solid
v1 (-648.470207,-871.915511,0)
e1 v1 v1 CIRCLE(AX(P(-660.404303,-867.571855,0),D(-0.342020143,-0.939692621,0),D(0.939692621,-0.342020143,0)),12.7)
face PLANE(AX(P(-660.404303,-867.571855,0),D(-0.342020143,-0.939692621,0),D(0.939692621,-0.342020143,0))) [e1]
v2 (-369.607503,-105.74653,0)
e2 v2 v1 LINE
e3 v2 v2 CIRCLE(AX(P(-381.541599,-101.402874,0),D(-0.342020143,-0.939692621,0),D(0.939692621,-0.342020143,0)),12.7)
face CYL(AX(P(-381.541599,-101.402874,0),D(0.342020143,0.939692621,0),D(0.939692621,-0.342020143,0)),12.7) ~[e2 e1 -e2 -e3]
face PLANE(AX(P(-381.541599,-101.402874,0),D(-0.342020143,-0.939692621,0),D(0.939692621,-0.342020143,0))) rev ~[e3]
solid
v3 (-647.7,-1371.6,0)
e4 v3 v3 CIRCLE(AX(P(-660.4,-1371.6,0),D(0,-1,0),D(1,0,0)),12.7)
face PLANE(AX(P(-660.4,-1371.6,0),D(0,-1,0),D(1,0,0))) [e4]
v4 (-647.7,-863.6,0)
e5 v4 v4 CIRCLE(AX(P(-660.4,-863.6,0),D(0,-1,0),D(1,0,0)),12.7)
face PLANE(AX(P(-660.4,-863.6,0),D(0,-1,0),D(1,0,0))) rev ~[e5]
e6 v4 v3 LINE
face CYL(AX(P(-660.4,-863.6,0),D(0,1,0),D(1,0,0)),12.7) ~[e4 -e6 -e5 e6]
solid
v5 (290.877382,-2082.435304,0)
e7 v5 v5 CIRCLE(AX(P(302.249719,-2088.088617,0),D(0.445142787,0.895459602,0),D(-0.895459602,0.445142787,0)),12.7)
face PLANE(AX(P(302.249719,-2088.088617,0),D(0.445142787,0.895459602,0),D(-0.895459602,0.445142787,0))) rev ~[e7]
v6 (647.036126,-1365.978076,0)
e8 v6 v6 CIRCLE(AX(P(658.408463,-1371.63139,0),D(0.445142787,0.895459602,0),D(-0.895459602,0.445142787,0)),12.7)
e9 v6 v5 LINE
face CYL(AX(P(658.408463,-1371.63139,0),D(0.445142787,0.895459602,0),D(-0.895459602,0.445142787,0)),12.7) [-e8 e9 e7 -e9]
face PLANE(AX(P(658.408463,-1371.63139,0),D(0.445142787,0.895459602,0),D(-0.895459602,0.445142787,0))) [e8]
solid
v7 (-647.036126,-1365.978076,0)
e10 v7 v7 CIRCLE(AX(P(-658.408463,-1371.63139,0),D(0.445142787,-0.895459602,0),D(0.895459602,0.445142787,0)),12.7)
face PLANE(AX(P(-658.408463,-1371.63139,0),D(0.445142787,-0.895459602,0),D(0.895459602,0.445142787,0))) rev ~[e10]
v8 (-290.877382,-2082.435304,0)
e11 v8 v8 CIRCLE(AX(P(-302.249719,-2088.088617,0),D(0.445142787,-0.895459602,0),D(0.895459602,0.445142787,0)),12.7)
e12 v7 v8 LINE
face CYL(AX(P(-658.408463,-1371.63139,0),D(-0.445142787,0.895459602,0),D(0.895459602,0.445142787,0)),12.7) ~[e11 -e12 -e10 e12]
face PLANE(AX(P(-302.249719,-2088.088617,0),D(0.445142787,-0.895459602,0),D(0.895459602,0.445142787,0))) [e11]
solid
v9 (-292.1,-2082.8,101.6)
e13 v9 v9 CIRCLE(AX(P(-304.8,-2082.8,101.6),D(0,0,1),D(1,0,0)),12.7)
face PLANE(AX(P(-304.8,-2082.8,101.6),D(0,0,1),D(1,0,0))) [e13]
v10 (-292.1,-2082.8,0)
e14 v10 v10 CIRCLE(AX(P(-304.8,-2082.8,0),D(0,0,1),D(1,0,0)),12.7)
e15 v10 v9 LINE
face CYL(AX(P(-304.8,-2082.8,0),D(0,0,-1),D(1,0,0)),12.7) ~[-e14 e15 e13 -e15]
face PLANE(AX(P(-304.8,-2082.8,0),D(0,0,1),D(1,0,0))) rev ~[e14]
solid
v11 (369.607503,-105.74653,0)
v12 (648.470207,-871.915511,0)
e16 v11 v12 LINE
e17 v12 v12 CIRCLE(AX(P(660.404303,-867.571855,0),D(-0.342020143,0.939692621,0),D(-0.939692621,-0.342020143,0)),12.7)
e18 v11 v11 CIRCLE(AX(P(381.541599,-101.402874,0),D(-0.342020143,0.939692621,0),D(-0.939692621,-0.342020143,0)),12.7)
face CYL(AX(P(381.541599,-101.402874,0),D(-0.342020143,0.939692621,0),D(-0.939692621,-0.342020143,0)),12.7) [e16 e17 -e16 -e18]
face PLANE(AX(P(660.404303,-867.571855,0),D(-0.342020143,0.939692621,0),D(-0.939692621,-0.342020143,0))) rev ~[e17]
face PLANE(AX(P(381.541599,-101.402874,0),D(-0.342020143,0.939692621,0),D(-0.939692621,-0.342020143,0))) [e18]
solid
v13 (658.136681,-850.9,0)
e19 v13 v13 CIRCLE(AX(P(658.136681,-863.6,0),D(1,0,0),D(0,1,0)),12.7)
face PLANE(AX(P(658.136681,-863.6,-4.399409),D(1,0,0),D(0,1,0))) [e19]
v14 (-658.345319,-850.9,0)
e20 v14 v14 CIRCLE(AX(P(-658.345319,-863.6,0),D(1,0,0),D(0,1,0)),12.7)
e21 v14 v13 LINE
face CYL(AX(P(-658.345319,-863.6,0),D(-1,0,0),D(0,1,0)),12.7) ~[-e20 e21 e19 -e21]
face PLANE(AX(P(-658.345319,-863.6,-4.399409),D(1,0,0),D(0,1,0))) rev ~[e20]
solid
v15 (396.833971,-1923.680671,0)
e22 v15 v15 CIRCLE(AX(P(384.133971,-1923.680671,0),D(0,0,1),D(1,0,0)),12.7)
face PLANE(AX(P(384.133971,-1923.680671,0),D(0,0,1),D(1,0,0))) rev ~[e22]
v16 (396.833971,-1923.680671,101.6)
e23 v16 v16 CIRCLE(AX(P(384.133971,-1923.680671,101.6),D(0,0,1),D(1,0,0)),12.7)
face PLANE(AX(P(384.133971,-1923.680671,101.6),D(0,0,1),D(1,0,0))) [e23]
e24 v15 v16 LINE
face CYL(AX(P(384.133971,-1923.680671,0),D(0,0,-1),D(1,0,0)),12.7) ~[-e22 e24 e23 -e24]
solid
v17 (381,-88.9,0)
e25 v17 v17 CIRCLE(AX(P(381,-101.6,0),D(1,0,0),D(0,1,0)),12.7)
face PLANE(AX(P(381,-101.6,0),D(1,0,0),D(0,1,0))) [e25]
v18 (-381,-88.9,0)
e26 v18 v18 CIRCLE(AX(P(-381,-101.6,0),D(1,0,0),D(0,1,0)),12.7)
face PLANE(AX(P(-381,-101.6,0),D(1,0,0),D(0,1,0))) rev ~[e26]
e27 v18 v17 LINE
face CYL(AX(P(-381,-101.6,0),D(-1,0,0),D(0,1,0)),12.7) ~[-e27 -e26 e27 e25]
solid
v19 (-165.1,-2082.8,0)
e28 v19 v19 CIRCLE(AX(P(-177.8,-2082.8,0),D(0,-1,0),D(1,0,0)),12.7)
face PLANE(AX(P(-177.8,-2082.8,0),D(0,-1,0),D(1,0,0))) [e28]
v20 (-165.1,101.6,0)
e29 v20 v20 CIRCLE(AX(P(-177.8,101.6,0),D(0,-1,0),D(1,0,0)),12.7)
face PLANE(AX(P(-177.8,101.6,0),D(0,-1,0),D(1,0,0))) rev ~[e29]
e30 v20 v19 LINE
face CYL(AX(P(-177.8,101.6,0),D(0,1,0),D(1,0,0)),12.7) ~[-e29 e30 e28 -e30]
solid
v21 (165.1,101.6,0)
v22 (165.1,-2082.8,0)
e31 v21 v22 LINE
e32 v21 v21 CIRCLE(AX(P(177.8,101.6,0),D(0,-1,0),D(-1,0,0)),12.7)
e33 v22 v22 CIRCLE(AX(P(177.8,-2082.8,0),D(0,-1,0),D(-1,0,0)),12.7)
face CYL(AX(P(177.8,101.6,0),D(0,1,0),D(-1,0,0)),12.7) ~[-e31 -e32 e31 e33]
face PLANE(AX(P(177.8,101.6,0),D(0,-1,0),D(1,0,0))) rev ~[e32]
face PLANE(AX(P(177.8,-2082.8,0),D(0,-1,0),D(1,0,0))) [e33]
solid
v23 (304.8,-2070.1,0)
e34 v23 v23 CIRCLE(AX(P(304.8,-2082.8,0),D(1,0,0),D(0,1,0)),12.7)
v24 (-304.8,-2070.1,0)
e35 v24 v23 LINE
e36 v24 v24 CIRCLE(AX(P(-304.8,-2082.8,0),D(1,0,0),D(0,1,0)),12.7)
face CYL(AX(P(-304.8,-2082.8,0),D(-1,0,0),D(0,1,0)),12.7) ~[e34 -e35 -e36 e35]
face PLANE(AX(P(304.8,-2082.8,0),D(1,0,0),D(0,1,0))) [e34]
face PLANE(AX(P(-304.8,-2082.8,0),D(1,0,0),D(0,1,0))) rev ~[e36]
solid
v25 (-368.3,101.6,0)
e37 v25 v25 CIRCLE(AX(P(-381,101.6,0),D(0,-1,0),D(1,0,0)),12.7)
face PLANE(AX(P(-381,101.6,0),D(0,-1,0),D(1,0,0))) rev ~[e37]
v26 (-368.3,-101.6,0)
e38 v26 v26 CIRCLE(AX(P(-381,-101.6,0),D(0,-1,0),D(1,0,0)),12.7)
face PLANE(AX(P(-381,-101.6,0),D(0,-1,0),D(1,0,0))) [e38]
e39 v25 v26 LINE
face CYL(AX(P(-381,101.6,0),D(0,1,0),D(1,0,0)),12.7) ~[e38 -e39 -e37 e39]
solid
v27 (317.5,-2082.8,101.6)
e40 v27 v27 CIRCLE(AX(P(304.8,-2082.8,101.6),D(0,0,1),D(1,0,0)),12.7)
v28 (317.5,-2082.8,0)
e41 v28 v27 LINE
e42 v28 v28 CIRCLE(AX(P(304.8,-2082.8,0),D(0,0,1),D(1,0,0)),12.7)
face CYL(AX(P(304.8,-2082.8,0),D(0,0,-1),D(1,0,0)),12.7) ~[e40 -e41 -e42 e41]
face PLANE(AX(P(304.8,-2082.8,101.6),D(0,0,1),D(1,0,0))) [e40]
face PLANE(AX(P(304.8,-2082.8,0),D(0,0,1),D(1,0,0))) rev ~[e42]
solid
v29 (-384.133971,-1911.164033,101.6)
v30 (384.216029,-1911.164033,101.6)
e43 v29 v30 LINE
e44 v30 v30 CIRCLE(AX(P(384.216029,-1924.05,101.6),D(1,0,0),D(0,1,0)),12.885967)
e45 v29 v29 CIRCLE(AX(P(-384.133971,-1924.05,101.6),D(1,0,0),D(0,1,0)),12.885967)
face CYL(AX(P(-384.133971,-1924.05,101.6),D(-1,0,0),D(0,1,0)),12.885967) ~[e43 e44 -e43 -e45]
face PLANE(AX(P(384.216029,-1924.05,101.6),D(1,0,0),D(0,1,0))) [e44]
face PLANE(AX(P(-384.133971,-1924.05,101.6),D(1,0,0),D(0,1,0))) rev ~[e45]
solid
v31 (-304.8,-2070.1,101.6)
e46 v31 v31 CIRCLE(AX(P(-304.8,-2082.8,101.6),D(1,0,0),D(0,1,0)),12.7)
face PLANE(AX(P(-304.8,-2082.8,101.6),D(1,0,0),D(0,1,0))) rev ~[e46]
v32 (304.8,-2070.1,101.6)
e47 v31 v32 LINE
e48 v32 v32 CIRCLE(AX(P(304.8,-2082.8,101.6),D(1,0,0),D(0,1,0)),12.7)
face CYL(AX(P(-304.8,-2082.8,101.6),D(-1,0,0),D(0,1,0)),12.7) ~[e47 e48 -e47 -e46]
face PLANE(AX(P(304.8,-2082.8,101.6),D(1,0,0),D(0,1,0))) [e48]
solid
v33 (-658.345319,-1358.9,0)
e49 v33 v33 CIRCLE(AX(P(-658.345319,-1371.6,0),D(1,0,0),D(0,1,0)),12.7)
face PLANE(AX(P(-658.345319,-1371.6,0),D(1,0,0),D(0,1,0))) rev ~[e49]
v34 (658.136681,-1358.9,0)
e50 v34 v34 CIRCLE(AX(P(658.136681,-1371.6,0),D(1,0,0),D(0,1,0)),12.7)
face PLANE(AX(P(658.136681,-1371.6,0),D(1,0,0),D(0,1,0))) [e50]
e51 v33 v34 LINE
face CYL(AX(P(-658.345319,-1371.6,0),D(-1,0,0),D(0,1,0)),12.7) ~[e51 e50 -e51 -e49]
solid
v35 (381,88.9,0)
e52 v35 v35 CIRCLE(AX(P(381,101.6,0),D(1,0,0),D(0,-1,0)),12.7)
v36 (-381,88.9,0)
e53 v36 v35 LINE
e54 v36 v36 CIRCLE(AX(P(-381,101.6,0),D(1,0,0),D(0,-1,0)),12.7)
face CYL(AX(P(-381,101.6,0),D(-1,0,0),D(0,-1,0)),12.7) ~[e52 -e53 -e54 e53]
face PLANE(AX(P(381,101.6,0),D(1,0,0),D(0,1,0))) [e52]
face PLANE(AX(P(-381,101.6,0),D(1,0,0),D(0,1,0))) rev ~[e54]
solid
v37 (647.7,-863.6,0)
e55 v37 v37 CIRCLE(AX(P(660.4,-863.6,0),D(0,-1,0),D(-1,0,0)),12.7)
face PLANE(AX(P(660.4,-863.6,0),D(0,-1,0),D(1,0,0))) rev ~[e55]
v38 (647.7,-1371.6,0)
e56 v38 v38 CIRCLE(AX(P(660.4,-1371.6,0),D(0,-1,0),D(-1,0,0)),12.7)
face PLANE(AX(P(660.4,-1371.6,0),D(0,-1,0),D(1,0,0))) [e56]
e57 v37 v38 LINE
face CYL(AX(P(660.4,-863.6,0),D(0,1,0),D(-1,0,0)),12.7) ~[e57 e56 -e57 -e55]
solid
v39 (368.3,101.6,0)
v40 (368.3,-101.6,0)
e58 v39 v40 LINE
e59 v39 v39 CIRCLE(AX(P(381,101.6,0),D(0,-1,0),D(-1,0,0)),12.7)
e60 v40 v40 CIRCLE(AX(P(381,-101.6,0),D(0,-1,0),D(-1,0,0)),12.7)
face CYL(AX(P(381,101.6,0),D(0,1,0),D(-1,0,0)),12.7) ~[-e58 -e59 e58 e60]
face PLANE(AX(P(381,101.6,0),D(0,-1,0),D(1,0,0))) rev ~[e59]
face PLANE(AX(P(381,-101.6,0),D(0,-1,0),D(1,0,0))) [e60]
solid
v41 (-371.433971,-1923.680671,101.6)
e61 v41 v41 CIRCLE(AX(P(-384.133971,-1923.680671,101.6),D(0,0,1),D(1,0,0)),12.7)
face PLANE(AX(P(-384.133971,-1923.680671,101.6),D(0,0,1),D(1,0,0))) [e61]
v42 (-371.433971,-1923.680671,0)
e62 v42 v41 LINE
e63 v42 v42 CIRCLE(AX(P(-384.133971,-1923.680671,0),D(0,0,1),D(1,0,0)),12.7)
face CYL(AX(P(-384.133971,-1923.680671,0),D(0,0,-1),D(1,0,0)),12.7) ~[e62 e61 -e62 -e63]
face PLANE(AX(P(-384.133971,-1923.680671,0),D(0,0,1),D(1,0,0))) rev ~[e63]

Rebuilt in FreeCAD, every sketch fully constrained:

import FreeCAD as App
import Part
import Sketcher

V = App.Vector
Q = App.Units.Quantity

doc = App.newDocument("Part")
body = doc.addObject("PartDesign::Body", "Body")

# Sketch on YZ plane
sketch1 = body.newObject("Sketcher::SketchObject", "Sketch")
sketch1.AttachmentSupport = (doc.getObject("YZ_Plane"), [""])
sketch1.MapMode = "FlatFace"
sketch1.AttachmentOffset = App.Placement(V(0, 0, -15 * 25.4), App.Rotation())
sketch1.addGeometry(Part.Circle(V(102, 0, 0), V(0, 0, 1), 13), False)
sketch1.addConstraint([
    Sketcher.Constraint("PointOnObject", 0, 3, -1),
    Sketcher.Constraint("Diameter", 0, Q("1 in")),
    Sketcher.Constraint("DistanceX", -1, 1, 0, 3, Q("4 in")),
])
pad1 = body.newObject("PartDesign::Pad", "Pad")
pad1.Profile = sketch1
pad1.Length = Q("30 in")
body2 = doc.addObject("PartDesign::Body", "Body001")

# Sketch on YZ plane
sketch2 = body2.newObject("Sketcher::SketchObject", "Sketch001")
sketch2.AttachmentSupport = (doc.getObject("YZ_Plane001"), [""])
sketch2.MapMode = "FlatFace"
sketch2.AttachmentOffset = App.Placement(V(0, 0, -15 * 25.4), App.Rotation())
sketch2.addGeometry(Part.Circle(V(-102, 0, 0), V(0, 0, 1), 13), False)
sketch2.addConstraint([
    Sketcher.Constraint("PointOnObject", 0, 3, -1),
    Sketcher.Constraint("Diameter", 0, Q("1 in")),
    Sketcher.Constraint("DistanceX", 0, 3, -1, 1, Q("4 in")),
])
pad2 = body2.newObject("PartDesign::Pad", "Pad001")
pad2.Profile = sketch2
pad2.Length = Q("30 in")
body3 = doc.addObject("PartDesign::Body", "Body002")

# Sketch on YZ plane
sketch3 = body3.newObject("Sketcher::SketchObject", "Sketch002")
sketch3.AttachmentSupport = (doc.getObject("YZ_Plane002"), [""])
sketch3.MapMode = "FlatFace"
sketch3.AttachmentOffset = App.Placement(V(0, 0, -658.345319), App.Rotation())
sketch3.addGeometry(Part.Circle(V(-864, 0, 0), V(0, 0, 1), 13), False)
sketch3.addConstraint([
    Sketcher.Constraint("PointOnObject", 0, 3, -1),
    Sketcher.Constraint("Diameter", 0, Q("1 in")),
    Sketcher.Constraint("DistanceX", 0, 3, -1, 1, Q("34 in")),
])
pad3 = body3.newObject("PartDesign::Pad", "Pad002")
pad3.Profile = sketch3
pad3.Length = Q("51.83 in")
body4 = doc.addObject("PartDesign::Body", "Body003")

# Sketch on YZ plane
sketch4 = body4.newObject("Sketcher::SketchObject", "Sketch003")
sketch4.AttachmentSupport = (doc.getObject("YZ_Plane003"), [""])
sketch4.MapMode = "FlatFace"
sketch4.AttachmentOffset = App.Placement(V(0, 0, -658.345319), App.Rotation())
sketch4.addGeometry(Part.Circle(V(-1372, 0, 0), V(0, 0, 1), 13), False)
sketch4.addConstraint([
    Sketcher.Constraint("PointOnObject", 0, 3, -1),
    Sketcher.Constraint("Diameter", 0, Q("1 in")),
    Sketcher.Constraint("DistanceX", 0, 3, -1, 1, Q("54 in")),
])
pad4 = body4.newObject("PartDesign::Pad", "Pad003")
pad4.Profile = sketch4
pad4.Length = Q("51.83 in")
body5 = doc.addObject("PartDesign::Body", "Body004")

# Sketch on YZ plane
sketch5 = body5.newObject("Sketcher::SketchObject", "Sketch004")
sketch5.AttachmentSupport = (doc.getObject("YZ_Plane004"), [""])
sketch5.MapMode = "FlatFace"
sketch5.AttachmentOffset = App.Placement(V(0, 0, -12 * 25.4), App.Rotation())
sketch5.addGeometry(Part.Circle(V(-2083, 0, 0), V(0, 0, 1), 13), False)
sketch5.addConstraint([
    Sketcher.Constraint("PointOnObject", 0, 3, -1),
    Sketcher.Constraint("Diameter", 0, Q("1 in")),
    Sketcher.Constraint("DistanceX", 0, 3, -1, 1, Q("82 in")),
])
pad5 = body5.newObject("PartDesign::Pad", "Pad004")
pad5.Profile = sketch5
pad5.Length = Q("24 in")
body6 = doc.addObject("PartDesign::Body", "Body005")

# Sketch on XZ plane
sketch6 = body6.newObject("Sketcher::SketchObject", "Sketch005")
sketch6.AttachmentSupport = (doc.getObject("XZ_Plane005"), [""])
sketch6.MapMode = "FlatFace"
sketch6.AttachmentOffset = App.Placement(V(0, 0, -4 * 25.4), App.Rotation())
sketch6.addGeometry(Part.Circle(V(-178, 0, 0), V(0, 0, 1), 13), False)
sketch6.addConstraint([
    Sketcher.Constraint("PointOnObject", 0, 3, -1),
    Sketcher.Constraint("Diameter", 0, Q("1 in")),
    Sketcher.Constraint("DistanceX", 0, 3, -1, 1, Q("7 in")),
])
pad6 = body6.newObject("PartDesign::Pad", "Pad005")
pad6.Profile = sketch6
pad6.Length = Q("86 in")
body7 = doc.addObject("PartDesign::Body", "Body006")

# Sketch on XZ plane
sketch7 = body7.newObject("Sketcher::SketchObject", "Sketch006")
sketch7.AttachmentSupport = (doc.getObject("XZ_Plane006"), [""])
sketch7.MapMode = "FlatFace"
sketch7.AttachmentOffset = App.Placement(V(0, 0, -4 * 25.4), App.Rotation())
sketch7.addGeometry(Part.Circle(V(178, 0, 0), V(0, 0, 1), 13), False)
sketch7.addConstraint([
    Sketcher.Constraint("PointOnObject", 0, 3, -1),
    Sketcher.Constraint("Diameter", 0, Q("1 in")),
    Sketcher.Constraint("DistanceX", -1, 1, 0, 3, Q("7 in")),
])
pad7 = body7.newObject("PartDesign::Pad", "Pad006")
pad7.Profile = sketch7
pad7.Length = Q("86 in")
body8 = doc.addObject("PartDesign::Body", "Body007")

# Sketch on XZ plane
sketch8 = body8.newObject("Sketcher::SketchObject", "Sketch007")
sketch8.AttachmentSupport = (doc.getObject("XZ_Plane007"), [""])
sketch8.MapMode = "FlatFace"
sketch8.AttachmentOffset = App.Placement(V(0, 0, -4 * 25.4), App.Rotation())
sketch8.addGeometry(Part.Circle(V(381, 0, 0), V(0, 0, 1), 13), False)
sketch8.addConstraint([
    Sketcher.Constraint("PointOnObject", 0, 3, -1),
    Sketcher.Constraint("Diameter", 0, Q("1 in")),
    Sketcher.Constraint("DistanceX", -1, 1, 0, 3, Q("15 in")),
])
pad8 = body8.newObject("PartDesign::Pad", "Pad007")
pad8.Profile = sketch8
pad8.Length = Q("8 in")
body9 = doc.addObject("PartDesign::Body", "Body008")

# Sketch on XZ plane
sketch9 = body9.newObject("Sketcher::SketchObject", "Sketch008")
sketch9.AttachmentSupport = (doc.getObject("XZ_Plane008"), [""])
sketch9.MapMode = "FlatFace"
sketch9.AttachmentOffset = App.Placement(V(0, 0, -4 * 25.4), App.Rotation())
sketch9.addGeometry(Part.Circle(V(-381, 0, 0), V(0, 0, 1), 13), False)
sketch9.addConstraint([
    Sketcher.Constraint("PointOnObject", 0, 3, -1),
    Sketcher.Constraint("Diameter", 0, Q("1 in")),
    Sketcher.Constraint("DistanceX", 0, 3, -1, 1, Q("15 in")),
])
pad9 = body9.newObject("PartDesign::Pad", "Pad008")
pad9.Profile = sketch9
pad9.Length = Q("8 in")
body10 = doc.addObject("PartDesign::Body", "Body009")

# Sketch on XZ plane
sketch10 = body10.newObject("Sketcher::SketchObject", "Sketch009")
sketch10.AttachmentSupport = (doc.getObject("XZ_Plane009"), [""])
sketch10.MapMode = "FlatFace"
sketch10.AttachmentOffset = App.Placement(V(0, 0, 34 * 25.4), App.Rotation())
sketch10.addGeometry(Part.Circle(V(660, 0, 0), V(0, 0, 1), 13), False)
sketch10.addConstraint([
    Sketcher.Constraint("PointOnObject", 0, 3, -1),
    Sketcher.Constraint("Diameter", 0, Q("1 in")),
    Sketcher.Constraint("DistanceX", -1, 1, 0, 3, Q("26 in")),
])
pad10 = body10.newObject("PartDesign::Pad", "Pad009")
pad10.Profile = sketch10
pad10.Length = Q("20 in")
body11 = doc.addObject("PartDesign::Body", "Body010")

# Sketch on XZ plane
sketch11 = body11.newObject("Sketcher::SketchObject", "Sketch010")
sketch11.AttachmentSupport = (doc.getObject("XZ_Plane010"), [""])
sketch11.MapMode = "FlatFace"
sketch11.AttachmentOffset = App.Placement(V(0, 0, 34 * 25.4), App.Rotation())
sketch11.addGeometry(Part.Circle(V(-660, 0, 0), V(0, 0, 1), 13), False)
sketch11.addConstraint([
    Sketcher.Constraint("PointOnObject", 0, 3, -1),
    Sketcher.Constraint("Diameter", 0, Q("1 in")),
    Sketcher.Constraint("DistanceX", 0, 3, -1, 1, Q("26 in")),
])
pad11 = body11.newObject("PartDesign::Pad", "Pad010")
pad11.Profile = sketch11
pad11.Length = Q("20 in")
body12 = doc.addObject("PartDesign::Body", "Body011")

# Sketch on an angled plane
sketch12 = body12.newObject("Sketcher::SketchObject", "Sketch011")
sketch12.Placement = App.Placement(V(77.222144, -212.166097, 0), App.Rotation(V(-0.939692621, -0.342020143, 0), V(0, 0, 1), V(-0.342020143, 0.939692621, 0), "ZXY"))
sketch12.addGeometry(Part.Circle(V(-324, 0, 0), V(0, 0, 1), 13), False)
sketch12.addConstraint([
    Sketcher.Constraint("PointOnObject", 0, 3, -1),
    Sketcher.Constraint("Diameter", 0, Q("1 in")),
    Sketcher.Constraint("DistanceX", 0, 3, -1, 1, Q("12.75 in")),
])
pad12 = body12.newObject("PartDesign::Pad", "Pad011")
pad12.Profile = sketch12
pad12.Length = Q("32.1 in")
pad12.Reversed = True
body13 = doc.addObject("PartDesign::Body", "Body012")

# Sketch on an angled plane
sketch13 = body13.newObject("Sketcher::SketchObject", "Sketch012")
sketch13.Placement = App.Placement(V(-77.222144, -212.166097, 0), App.Rotation(V(0.939692621, -0.342020143, 0), V(0, 0, 1), V(-0.342020143, -0.939692621, 0), "ZXY"))
sketch13.addGeometry(Part.Circle(V(-324, 0, 0), V(0, 0, 1), 13), False)
sketch13.addConstraint([
    Sketcher.Constraint("PointOnObject", 0, 3, -1),
    Sketcher.Constraint("Diameter", 0, Q("1 in")),
    Sketcher.Constraint("DistanceX", 0, 3, -1, 1, Q("12.75 in")),
])
pad13 = body13.newObject("PartDesign::Pad", "Pad012")
pad13.Profile = sketch13
pad13.Length = Q("32.1 in")
body14 = doc.addObject("PartDesign::Body", "Body013")

# Sketch on an angled plane
sketch14 = body14.newObject("Sketcher::SketchObject", "Sketch013")
sketch14.Placement = App.Placement(V(-416.277379, -837.393274, 0), App.Rotation(V(-0.895459602, 0.445142787, 0), V(0, 0, 1), V(0.445142787, 0.895459602, 0), "ZXY"))
sketch14.addGeometry(Part.Circle(V(-1200, 0, 0), V(0, 0, 1), 13), False)
sketch14.addConstraint([
    Sketcher.Constraint("PointOnObject", 0, 3, -1),
    Sketcher.Constraint("Diameter", 0, Q("1 in")),
    Sketcher.Constraint("DistanceX", 0, 3, -1, 1, Q("47.25 in")),
])
pad14 = body14.newObject("PartDesign::Pad", "Pad013")
pad14.Profile = sketch14
pad14.Length = Q("31.5 in")
pad14.Reversed = True
body15 = doc.addObject("PartDesign::Body", "Body014")

# Sketch on an angled plane
sketch15 = body15.newObject("Sketcher::SketchObject", "Sketch014")
sketch15.Placement = App.Placement(V(416.277379, -837.393274, 0), App.Rotation(V(0.895459602, 0.445142787, 0), V(0, 0, 1), V(0.445142787, -0.895459602, 0), "ZXY"))
sketch15.addGeometry(Part.Circle(V(-1200, 0, 0), V(0, 0, 1), 13), False)
sketch15.addConstraint([
    Sketcher.Constraint("PointOnObject", 0, 3, -1),
    Sketcher.Constraint("Diameter", 0, Q("1 in")),
    Sketcher.Constraint("DistanceX", 0, 3, -1, 1, Q("47.25 in")),
])
pad15 = body15.newObject("PartDesign::Pad", "Pad014")
pad15.Profile = sketch15
pad15.Length = Q("31.5 in")
body16 = doc.addObject("PartDesign::Body", "Body015")

# Sketch on XY plane
sketch16 = body16.newObject("Sketcher::SketchObject", "Sketch015")
sketch16.AttachmentSupport = (doc.getObject("XY_Plane015"), [""])
sketch16.MapMode = "FlatFace"
sketch16.addGeometry(Part.Circle(V(-305, -2083, 0), V(0, 0, 1), 13), False)
sketch16.addConstraint([
    Sketcher.Constraint("Diameter", 0, Q("1 in")),
    Sketcher.Constraint("DistanceX", 0, 3, -1, 1, Q("12 in")),
    Sketcher.Constraint("DistanceY", 0, 3, -1, 1, Q("82 in")),
])
pad16 = body16.newObject("PartDesign::Pad", "Pad015")
pad16.Profile = sketch16
pad16.Length = Q("4 in")
body17 = doc.addObject("PartDesign::Body", "Body016")

# Sketch on XY plane
sketch17 = body17.newObject("Sketcher::SketchObject", "Sketch016")
sketch17.AttachmentSupport = (doc.getObject("XY_Plane016"), [""])
sketch17.MapMode = "FlatFace"
sketch17.addGeometry(Part.Circle(V(305, -2083, 0), V(0, 0, 1), 13), False)
sketch17.addConstraint([
    Sketcher.Constraint("Diameter", 0, Q("1 in")),
    Sketcher.Constraint("DistanceX", -1, 1, 0, 3, Q("12 in")),
    Sketcher.Constraint("DistanceY", 0, 3, -1, 1, Q("82 in")),
])
pad17 = body17.newObject("PartDesign::Pad", "Pad016")
pad17.Profile = sketch17
pad17.Length = Q("4 in")
body18 = doc.addObject("PartDesign::Body", "Body017")

# Sketch on XY plane
sketch18 = body18.newObject("Sketcher::SketchObject", "Sketch017")
sketch18.AttachmentSupport = (doc.getObject("XY_Plane017"), [""])
sketch18.MapMode = "FlatFace"
sketch18.addGeometry(Part.Circle(V(-384, -1924, 0), V(0, 0, 1), 13), False)
sketch18.addConstraint([
    Sketcher.Constraint("Diameter", 0, Q("1 in")),
    Sketcher.Constraint("DistanceX", 0, 3, -1, 1, 384.133971),
    Sketcher.Constraint("DistanceY", 0, 3, -1, 1, 1923.680671),
])
pad18 = body18.newObject("PartDesign::Pad", "Pad017")
pad18.Profile = sketch18
pad18.Length = Q("4 in")
body19 = doc.addObject("PartDesign::Body", "Body018")

# Sketch on XY plane
sketch19 = body19.newObject("Sketcher::SketchObject", "Sketch018")
sketch19.AttachmentSupport = (doc.getObject("XY_Plane018"), [""])
sketch19.MapMode = "FlatFace"
sketch19.addGeometry(Part.Circle(V(384, -1924, 0), V(0, 0, 1), 13), False)
sketch19.addConstraint([
    Sketcher.Constraint("Diameter", 0, Q("1 in")),
    Sketcher.Constraint("DistanceX", -1, 1, 0, 3, 384.133971),
    Sketcher.Constraint("DistanceY", 0, 3, -1, 1, 1923.680671),
])
pad19 = body19.newObject("PartDesign::Pad", "Pad018")
pad19.Profile = sketch19
pad19.Length = Q("4 in")
body20 = doc.addObject("PartDesign::Body", "Body019")

# Sketch on YZ plane
sketch20 = body20.newObject("Sketcher::SketchObject", "Sketch019")
sketch20.AttachmentSupport = (doc.getObject("YZ_Plane019"), [""])
sketch20.MapMode = "FlatFace"
sketch20.AttachmentOffset = App.Placement(V(0, 0, -12 * 25.4), App.Rotation())
sketch20.addGeometry(Part.Circle(V(-2083, 102, 0), V(0, 0, 1), 13), False)
sketch20.addConstraint([
    Sketcher.Constraint("Diameter", 0, Q("1 in")),
    Sketcher.Constraint("DistanceX", 0, 3, -1, 1, Q("82 in")),
    Sketcher.Constraint("DistanceY", -1, 1, 0, 3, Q("4 in")),
])
pad20 = body20.newObject("PartDesign::Pad", "Pad019")
pad20.Profile = sketch20
pad20.Length = Q("24 in")
body21 = doc.addObject("PartDesign::Body", "Body020")

# Sketch on YZ plane
sketch21 = body21.newObject("Sketcher::SketchObject", "Sketch020")
sketch21.AttachmentSupport = (doc.getObject("YZ_Plane020"), [""])
sketch21.MapMode = "FlatFace"
sketch21.AttachmentOffset = App.Placement(V(0, 0, -384.133971), App.Rotation())
sketch21.addGeometry(Part.Circle(V(-1924, 102, 0), V(0, 0, 1), 13), False)
sketch21.addConstraint([
    Sketcher.Constraint("DistanceY", -1, 1, 0, 3, Q("4 in")),
    Sketcher.Constraint("DistanceX", 0, 3, -1, 1, Q("75.75 in")),
    Sketcher.Constraint("Diameter", 0, 25.771934),
])
pad21 = body21.newObject("PartDesign::Pad", "Pad020")
pad21.Profile = sketch21
pad21.Length = Q("30.25 in")

doc.recompute()
